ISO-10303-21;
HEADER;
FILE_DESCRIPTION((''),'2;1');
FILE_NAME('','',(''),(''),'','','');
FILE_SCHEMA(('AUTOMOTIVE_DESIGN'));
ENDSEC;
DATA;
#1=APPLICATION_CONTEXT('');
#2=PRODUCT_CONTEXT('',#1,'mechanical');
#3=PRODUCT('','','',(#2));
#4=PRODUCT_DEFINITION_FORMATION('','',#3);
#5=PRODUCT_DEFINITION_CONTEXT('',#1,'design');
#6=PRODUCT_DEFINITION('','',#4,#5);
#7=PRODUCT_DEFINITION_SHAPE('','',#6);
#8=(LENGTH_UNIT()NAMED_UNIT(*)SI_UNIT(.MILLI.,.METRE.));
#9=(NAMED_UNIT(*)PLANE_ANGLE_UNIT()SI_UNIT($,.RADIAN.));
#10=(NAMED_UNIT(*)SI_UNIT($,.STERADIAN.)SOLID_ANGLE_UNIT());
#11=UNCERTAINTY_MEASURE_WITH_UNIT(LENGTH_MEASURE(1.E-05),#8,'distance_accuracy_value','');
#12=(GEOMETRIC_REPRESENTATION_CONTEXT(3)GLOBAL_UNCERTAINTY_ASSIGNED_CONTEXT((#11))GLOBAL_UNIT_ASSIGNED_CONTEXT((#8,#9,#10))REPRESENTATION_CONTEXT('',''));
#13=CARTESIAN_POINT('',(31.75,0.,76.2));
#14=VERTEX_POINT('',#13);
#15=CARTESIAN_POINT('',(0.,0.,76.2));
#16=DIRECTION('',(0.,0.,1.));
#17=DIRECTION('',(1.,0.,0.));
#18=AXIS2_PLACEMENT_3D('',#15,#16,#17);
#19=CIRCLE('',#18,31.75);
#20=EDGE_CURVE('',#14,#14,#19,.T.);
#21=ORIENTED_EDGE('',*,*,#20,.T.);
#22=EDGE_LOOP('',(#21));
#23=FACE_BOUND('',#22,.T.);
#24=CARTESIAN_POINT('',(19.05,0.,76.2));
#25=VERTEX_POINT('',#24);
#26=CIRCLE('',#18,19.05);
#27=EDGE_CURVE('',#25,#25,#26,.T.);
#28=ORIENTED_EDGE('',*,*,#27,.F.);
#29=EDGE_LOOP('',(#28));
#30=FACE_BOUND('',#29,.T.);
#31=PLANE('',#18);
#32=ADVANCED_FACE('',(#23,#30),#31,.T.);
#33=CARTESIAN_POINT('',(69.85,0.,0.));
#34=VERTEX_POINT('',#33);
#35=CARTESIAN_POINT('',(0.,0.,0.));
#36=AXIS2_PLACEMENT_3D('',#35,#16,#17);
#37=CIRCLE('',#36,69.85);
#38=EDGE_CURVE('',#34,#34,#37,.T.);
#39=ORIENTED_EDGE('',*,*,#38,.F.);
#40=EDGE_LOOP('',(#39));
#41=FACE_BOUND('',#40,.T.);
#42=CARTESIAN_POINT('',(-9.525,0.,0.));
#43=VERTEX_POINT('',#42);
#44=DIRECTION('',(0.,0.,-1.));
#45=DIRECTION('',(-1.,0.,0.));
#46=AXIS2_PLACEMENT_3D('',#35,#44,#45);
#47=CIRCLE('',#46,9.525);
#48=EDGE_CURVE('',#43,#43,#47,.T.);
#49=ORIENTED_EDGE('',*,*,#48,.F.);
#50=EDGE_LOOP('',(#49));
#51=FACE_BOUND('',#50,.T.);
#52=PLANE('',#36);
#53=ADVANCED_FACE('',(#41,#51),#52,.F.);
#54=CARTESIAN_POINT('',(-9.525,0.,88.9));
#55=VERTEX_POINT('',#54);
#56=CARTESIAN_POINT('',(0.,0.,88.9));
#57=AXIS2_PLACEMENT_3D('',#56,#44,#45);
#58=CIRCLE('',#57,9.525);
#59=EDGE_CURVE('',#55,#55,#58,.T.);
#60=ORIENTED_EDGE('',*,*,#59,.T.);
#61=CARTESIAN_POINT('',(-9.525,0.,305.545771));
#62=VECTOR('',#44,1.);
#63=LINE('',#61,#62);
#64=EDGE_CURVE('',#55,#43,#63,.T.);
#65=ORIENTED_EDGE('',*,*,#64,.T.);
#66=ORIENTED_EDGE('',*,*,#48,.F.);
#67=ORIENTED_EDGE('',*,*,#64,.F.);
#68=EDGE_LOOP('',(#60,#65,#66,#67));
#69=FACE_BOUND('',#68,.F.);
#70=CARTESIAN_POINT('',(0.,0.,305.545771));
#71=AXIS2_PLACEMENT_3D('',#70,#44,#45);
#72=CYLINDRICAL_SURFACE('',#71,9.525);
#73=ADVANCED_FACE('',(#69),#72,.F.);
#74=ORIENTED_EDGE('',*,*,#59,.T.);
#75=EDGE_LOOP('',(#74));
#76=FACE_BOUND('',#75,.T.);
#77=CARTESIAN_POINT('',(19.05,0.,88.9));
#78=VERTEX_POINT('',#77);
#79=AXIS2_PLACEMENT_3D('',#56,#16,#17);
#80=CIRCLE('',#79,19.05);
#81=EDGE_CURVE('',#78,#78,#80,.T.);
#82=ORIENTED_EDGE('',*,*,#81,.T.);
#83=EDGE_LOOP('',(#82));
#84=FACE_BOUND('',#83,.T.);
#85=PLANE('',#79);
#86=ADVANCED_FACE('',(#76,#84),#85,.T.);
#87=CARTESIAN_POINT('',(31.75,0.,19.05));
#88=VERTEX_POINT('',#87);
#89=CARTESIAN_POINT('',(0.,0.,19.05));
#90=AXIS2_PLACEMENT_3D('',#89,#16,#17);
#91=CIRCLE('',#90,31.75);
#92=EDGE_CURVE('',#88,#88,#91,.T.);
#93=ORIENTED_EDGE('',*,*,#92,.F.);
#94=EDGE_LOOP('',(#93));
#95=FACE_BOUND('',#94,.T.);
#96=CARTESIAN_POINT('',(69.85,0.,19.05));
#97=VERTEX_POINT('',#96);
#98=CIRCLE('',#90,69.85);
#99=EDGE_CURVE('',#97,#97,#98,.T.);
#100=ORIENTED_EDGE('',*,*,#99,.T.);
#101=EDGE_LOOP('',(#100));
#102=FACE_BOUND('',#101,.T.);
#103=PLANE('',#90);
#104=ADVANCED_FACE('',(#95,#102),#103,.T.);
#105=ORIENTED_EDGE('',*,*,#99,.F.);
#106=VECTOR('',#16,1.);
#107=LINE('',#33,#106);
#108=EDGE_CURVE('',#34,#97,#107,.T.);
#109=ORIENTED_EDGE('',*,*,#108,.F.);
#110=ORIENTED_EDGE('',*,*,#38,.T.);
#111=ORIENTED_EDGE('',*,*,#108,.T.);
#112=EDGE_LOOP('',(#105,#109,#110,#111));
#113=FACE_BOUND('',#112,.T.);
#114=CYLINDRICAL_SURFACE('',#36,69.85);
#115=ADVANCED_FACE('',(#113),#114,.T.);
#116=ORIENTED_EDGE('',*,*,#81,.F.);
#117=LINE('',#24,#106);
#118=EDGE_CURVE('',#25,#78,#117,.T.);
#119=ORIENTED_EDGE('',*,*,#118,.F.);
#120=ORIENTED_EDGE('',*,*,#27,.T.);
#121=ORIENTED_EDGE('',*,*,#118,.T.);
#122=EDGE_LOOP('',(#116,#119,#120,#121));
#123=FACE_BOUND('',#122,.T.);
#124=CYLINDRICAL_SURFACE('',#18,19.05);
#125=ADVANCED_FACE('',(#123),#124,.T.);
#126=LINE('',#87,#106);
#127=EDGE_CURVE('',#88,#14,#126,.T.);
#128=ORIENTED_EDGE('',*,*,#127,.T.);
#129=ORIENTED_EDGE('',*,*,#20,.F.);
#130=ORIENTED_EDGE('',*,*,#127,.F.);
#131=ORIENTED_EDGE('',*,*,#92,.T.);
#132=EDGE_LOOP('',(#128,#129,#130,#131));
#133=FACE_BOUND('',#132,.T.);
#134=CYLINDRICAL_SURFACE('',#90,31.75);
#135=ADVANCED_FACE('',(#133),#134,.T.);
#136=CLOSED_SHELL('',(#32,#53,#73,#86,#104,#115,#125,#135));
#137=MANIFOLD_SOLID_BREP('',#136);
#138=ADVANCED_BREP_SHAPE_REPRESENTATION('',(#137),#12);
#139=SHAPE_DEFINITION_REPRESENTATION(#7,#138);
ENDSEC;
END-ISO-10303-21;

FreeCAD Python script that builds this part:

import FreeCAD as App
import Part
import Sketcher
Q = App.Units.Quantity


def add_polygon(sketch, points):
    """Adds a closed chain of lines whose ends are joined by coincident constraints."""
    first, n = sketch.GeometryCount, len(points)
    for a, b in zip(points, points[1:] + points[:1]):
        sketch.addGeometry(Part.LineSegment(App.Vector(*a, 0), App.Vector(*b, 0)), False)
    for i in range(n):
        sketch.addConstraint(Sketcher.Constraint("Coincident", first + i, 2, first + (i + 1) % n, 1))

doc = App.newDocument("Part")
body = doc.addObject("PartDesign::Body", "Body")

# Sketch on XZ plane
sketch1 = body.newObject("Sketcher::SketchObject", "Sketch")
sketch1.AttachmentSupport = (doc.getObject("XZ_Plane"), [""])
sketch1.MapMode = "FlatFace"
add_polygon(sketch1, [(0, 89), (0, 0), (70, 0), (70, 19), (32, 19), (32, 76), (19, 76), (19, 89)])  # lines 0-7
sketch1.addConstraint(Sketcher.Constraint("Vertical", 0))
sketch1.addConstraint(Sketcher.Constraint("Horizontal", 1))
sketch1.addConstraint(Sketcher.Constraint("Vertical", 2))
sketch1.addConstraint(Sketcher.Constraint("Horizontal", 3))
sketch1.addConstraint(Sketcher.Constraint("Vertical", 4))
sketch1.addConstraint(Sketcher.Constraint("Horizontal", 5))
sketch1.addConstraint(Sketcher.Constraint("Vertical", 6))
sketch1.addConstraint(Sketcher.Constraint("Horizontal", 7))
sketch1.addConstraint(Sketcher.Constraint("Coincident", 0, 2, -1, 1))
sketch1.addConstraint(Sketcher.Constraint("Equal", 7, 2))
sketch1.addConstraint(Sketcher.Constraint("Equal", 5, 6))
sketch1.addConstraint(Sketcher.Constraint("DistanceX", 3, 2, 3, 1, Q("1.5 in")))
sketch1.addConstraint(Sketcher.Constraint("DistanceX", 5, 2, 5, 1, Q("0.5 in")))
sketch1.addConstraint(Sketcher.Constraint("DistanceY", 0, 2, 0, 1, Q("3.5 in")))
sketch1.addConstraint(Sketcher.Constraint("DistanceX", 1, 1, 1, 2, Q("2.75 in")))
revolution = body.newObject("PartDesign::Revolution", "Revolution")
revolution.Profile = sketch1
revolution.ReferenceAxis = (sketch1, ["V_Axis"])
revolution.Angle = 360

# Sketch on XY plane
sketch2 = body.newObject("Sketcher::SketchObject", "Sketch001")
sketch2.AttachmentSupport = (doc.getObject("XY_Plane"), [""])
sketch2.MapMode = "FlatFace"
sketch2.AttachmentOffset = App.Placement(App.Vector(0, 0, 3.5 * 25.4), App.Rotation())
sketch2.addGeometry(Part.Circle(App.Vector(0, 0, 0), App.Vector(0, 0, 1), 10), False)
sketch2.addConstraint(Sketcher.Constraint("Coincident", 0, 3, -1, 1))
sketch2.addConstraint(Sketcher.Constraint("Diameter", 0, Q("0.75 in")))
doc.recompute()
hole = body.newObject("PartDesign::Hole", "Hole")
hole.Profile = sketch2
hole.ThreadType = "None"
hole.Diameter = Q("0.75 in")
hole.DepthType = "ThroughAll"

doc.recompute()
